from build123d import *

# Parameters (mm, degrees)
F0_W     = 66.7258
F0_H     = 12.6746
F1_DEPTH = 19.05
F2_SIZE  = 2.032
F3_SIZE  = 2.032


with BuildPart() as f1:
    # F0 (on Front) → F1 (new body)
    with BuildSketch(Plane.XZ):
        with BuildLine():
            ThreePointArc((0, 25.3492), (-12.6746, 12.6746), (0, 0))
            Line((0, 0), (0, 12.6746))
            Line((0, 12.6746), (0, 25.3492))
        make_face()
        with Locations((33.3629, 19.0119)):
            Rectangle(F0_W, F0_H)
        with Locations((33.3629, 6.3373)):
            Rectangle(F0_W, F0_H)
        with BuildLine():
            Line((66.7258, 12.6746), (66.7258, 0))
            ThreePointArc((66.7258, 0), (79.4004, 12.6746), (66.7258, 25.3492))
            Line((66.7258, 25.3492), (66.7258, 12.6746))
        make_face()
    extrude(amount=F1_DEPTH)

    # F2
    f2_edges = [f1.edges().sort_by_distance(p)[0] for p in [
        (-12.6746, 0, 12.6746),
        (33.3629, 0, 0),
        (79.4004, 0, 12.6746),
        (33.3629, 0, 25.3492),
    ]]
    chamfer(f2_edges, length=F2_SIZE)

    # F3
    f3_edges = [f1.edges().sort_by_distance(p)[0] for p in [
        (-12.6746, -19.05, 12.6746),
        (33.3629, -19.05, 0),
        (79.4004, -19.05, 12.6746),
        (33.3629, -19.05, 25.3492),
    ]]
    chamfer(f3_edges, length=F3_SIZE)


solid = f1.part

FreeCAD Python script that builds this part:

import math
import FreeCAD as App
import Part
import Sketcher
Q = App.Units.Quantity


def edges_at(feature, points):
    """Names of the edges that pass closest to the given points."""
    edges = feature.Shape.Edges
    near = lambda p: min(range(len(edges)), key=lambda i: edges[i].distToShape(Part.Vertex(*p))[0])
    return sorted({f"Edge{near(p) + 1}" for p in points})

doc = App.newDocument("Part")
body = doc.addObject("PartDesign::Body", "Body")

# Sketch on XZ plane
sketch1 = body.newObject("Sketcher::SketchObject", "Sketch")
sketch1.AttachmentSupport = (doc.getObject("XZ_Plane"), [""])
sketch1.MapMode = "FlatFace"
sketch1.addGeometry([
    Part.ArcOfCircle(Part.Circle(App.Vector(0, 13, 0), App.Vector(0, 0, 1), 13), math.radians(90), math.radians(270)),
    Part.LineSegment(App.Vector(0, 0, 0), App.Vector(67, 0, 0)),
    Part.ArcOfCircle(Part.Circle(App.Vector(67, 13, 0), App.Vector(0, 0, 1), 13), math.radians(-90), math.radians(90)),
    Part.LineSegment(App.Vector(67, 25, 0), App.Vector(0, 25, 0)),
], False)
sketch1.addConstraint([
    Sketcher.Constraint("Tangent", 0, 2, 1, 1),
    Sketcher.Constraint("Tangent", 1, 2, 2, 1),
    Sketcher.Constraint("Tangent", 2, 2, 3, 1),
    Sketcher.Constraint("Tangent", 3, 2, 0, 1),
    Sketcher.Constraint("Horizontal", 1),
    Sketcher.Constraint("Horizontal", 3),
    Sketcher.Constraint("Coincident", 0, 2, -1, 1),
    Sketcher.Constraint("Radius", 0, Q("0.499 in")),
    Sketcher.Constraint("DistanceX", 1, 1, 1, 2, Q("2.627 in")),
])
pad1 = body.newObject("PartDesign::Pad", "Pad")
pad1.Profile = sketch1
pad1.Length = Q("0.75 in")
doc.recompute()

chamfer = body.newObject("PartDesign::Chamfer", "Chamfer")
chamfer.Base = (pad1, edges_at(pad1, [
    (-12.675, 0, 12.675),
    (33.363, 0, 0),
    (79.4, 0, 12.675),
    (33.363, 0, 25.349),
]))
chamfer.Size = Q("0.08 in")
doc.recompute()

chamfer2 = body.newObject("PartDesign::Chamfer", "Chamfer001")
chamfer2.Base = (chamfer, edges_at(chamfer, [
    (-12.675, -19.05, 12.675),
    (33.363, -19.05, 0),
    (79.4, -19.05, 12.675),
    (33.363, -19.05, 25.349),
]))
chamfer2.Size = Q("0.08 in")

doc.recompute()
